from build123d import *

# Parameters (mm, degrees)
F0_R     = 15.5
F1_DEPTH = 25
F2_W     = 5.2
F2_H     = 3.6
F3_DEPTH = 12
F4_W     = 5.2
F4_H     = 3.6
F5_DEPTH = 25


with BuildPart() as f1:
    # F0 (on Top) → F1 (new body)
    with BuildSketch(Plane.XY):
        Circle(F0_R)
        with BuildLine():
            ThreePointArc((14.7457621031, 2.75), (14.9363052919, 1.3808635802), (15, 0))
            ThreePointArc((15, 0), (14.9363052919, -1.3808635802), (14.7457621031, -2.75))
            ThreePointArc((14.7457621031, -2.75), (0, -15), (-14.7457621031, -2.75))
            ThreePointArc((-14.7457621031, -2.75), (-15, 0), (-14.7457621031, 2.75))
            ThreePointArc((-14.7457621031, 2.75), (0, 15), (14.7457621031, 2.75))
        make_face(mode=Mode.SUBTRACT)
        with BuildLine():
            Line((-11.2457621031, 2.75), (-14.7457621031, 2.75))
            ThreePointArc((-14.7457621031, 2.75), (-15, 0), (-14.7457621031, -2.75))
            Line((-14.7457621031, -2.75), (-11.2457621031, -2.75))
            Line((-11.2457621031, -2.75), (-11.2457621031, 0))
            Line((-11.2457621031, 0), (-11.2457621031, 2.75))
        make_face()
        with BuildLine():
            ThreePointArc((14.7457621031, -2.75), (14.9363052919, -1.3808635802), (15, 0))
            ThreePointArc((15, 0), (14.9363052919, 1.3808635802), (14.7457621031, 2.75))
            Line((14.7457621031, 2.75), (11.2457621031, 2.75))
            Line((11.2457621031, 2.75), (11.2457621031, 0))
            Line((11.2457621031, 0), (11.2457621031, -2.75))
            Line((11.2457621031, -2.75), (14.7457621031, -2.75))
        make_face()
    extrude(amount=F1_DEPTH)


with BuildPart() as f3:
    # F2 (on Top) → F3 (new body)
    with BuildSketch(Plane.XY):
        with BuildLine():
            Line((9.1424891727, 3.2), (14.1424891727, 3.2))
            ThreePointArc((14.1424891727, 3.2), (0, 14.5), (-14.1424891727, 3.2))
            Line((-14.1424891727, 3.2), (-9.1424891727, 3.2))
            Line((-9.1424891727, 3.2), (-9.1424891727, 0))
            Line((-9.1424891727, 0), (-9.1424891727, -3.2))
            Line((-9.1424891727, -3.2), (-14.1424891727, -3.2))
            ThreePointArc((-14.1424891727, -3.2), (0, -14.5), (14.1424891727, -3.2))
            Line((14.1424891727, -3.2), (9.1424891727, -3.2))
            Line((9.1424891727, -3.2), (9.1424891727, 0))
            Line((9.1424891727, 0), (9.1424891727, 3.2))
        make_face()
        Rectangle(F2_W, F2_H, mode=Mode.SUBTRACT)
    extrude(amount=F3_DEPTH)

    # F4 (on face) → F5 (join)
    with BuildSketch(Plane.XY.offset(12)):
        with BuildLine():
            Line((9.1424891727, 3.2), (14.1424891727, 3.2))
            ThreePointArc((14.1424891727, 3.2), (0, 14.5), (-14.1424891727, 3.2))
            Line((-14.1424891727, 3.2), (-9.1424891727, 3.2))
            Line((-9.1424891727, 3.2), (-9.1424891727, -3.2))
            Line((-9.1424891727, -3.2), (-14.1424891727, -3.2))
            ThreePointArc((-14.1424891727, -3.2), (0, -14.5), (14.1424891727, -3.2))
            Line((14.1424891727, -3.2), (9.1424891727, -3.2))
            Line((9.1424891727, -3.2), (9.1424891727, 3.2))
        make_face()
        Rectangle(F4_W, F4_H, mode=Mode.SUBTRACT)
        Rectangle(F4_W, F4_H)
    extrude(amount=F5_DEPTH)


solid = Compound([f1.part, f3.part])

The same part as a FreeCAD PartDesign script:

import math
import FreeCAD as App
import Part
import Sketcher

doc = App.newDocument("Part")
params = doc.addObject("Spreadsheet::Sheet", "Params")
for row, (alias, value) in enumerate([
    ("sketch1_diameter", "31 mm"),
    ("sketch1_radius", "15 mm"),
    ("sketch1_width", "3.5 mm"),
    ("sketch1_height", "5.5 mm"),
    ("pad1_length", "25 mm"),
    ("sketch2_radius", "14.5 mm"),
    ("sketch2_width", "5 mm"),
    ("sketch2_width2", "5.2 mm"),
    ("sketch2_height", "6.4 mm"),
    ("sketch2_height2", "3.6 mm"),
    ("pad2_length", "12 mm"),
    ("sketch3_radius", "14.5 mm"),
    ("sketch3_width", "5 mm"),
    ("sketch3_height", "6.4 mm"),
    ("pad3_length", "25 mm"),
], start=1):
    params.set(f"A{row}", alias)
    params.set(f"B{row}", "=" + value)
    params.setAlias(f"B{row}", alias)

body = doc.addObject("PartDesign::Body", "Body")

sketch1 = doc.addObject("Sketcher::SketchObject", "Sketch")
body.addObject(sketch1)
sketch1.AttachmentSupport = (doc.XY_Plane, [""])
sketch1.MapMode = "FlatFace"
sketch1.addGeometry([
    Part.Circle(App.Vector(0, 0, 0), App.Vector(0, 0, 1), 15.5),
    Part.ArcOfCircle(Part.Circle(App.Vector(0, 0, 0), App.Vector(0, 0, 1), 15), math.radians(11), math.radians(169)),
    Part.LineSegment(App.Vector(14.7, 2.8, 0), App.Vector(11.2, 2.8, 0)),
    Part.LineSegment(App.Vector(11.2, 2.8, 0), App.Vector(11.2, -2.8, 0)),
    Part.LineSegment(App.Vector(11.2, -2.8, 0), App.Vector(14.7, -2.8, 0)),
    Part.ArcOfCircle(Part.Circle(App.Vector(0, 0, 0), App.Vector(0, 0, 1), 15), math.radians(-169), math.radians(-11)),
    Part.LineSegment(App.Vector(-14.7, -2.8, 0), App.Vector(-11.2, -2.8, 0)),
    Part.LineSegment(App.Vector(-11.2, -2.8, 0), App.Vector(-11.2, 2.8, 0)),
    Part.LineSegment(App.Vector(-11.2, 2.8, 0), App.Vector(-14.7, 2.8, 0)),
], False)
sketch1.addConstraint([
    Sketcher.Constraint("Coincident", 1, 1, 2, 1),
    Sketcher.Constraint("Coincident", 2, 2, 3, 1),
    Sketcher.Constraint("Coincident", 3, 2, 4, 1),
    Sketcher.Constraint("Coincident", 4, 2, 5, 2),
    Sketcher.Constraint("Coincident", 5, 1, 6, 1),
    Sketcher.Constraint("Coincident", 6, 2, 7, 1),
    Sketcher.Constraint("Coincident", 7, 2, 8, 1),
    Sketcher.Constraint("Coincident", 8, 2, 1, 2),
    Sketcher.Constraint("Horizontal", 2),
    Sketcher.Constraint("Vertical", 3),
    Sketcher.Constraint("Horizontal", 4),
    Sketcher.Constraint("Horizontal", 6),
    Sketcher.Constraint("Vertical", 7),
    Sketcher.Constraint("Horizontal", 8),
    Sketcher.Constraint("Coincident", 0, 3, -1, 1),
    Sketcher.Constraint("Coincident", 1, 3, -1, 1),
    Sketcher.Constraint("Coincident", 5, 3, -1, 1),
    Sketcher.Constraint("Equal", 1, 5),
    Sketcher.Constraint("Symmetric", 2, 2, 6, 2, -1, 1),
    Sketcher.Constraint("Horizontal", 4, 2, 5, 1),
    Sketcher.Constraint("Horizontal", 2, 2, 7, 2),
    Sketcher.Constraint("Diameter", 0, 31.0),
    Sketcher.Constraint("Radius", 1, 15.0),
    Sketcher.Constraint("DistanceX", 2, 2, 2, 1, 3.5),
    Sketcher.Constraint("DistanceY", 3, 2, 3, 1, 5.5),
])
sketch1.setExpression("Constraints[21]", "Params.sketch1_diameter")
sketch1.setExpression("Constraints[22]", "Params.sketch1_radius")
sketch1.setExpression("Constraints[23]", "Params.sketch1_width")
sketch1.setExpression("Constraints[24]", "Params.sketch1_height")
pad1 = doc.addObject("PartDesign::Pad", "Pad")
body.addObject(pad1)
pad1.Profile = sketch1
pad1.setExpression("Length", "Params.pad1_length")
body2 = doc.addObject("PartDesign::Body", "Body001")

sketch2 = doc.addObject("Sketcher::SketchObject", "Sketch001")
body2.addObject(sketch2)
sketch2.AttachmentSupport = (doc.getObject("XY_Plane001"), [""])
sketch2.MapMode = "FlatFace"
sketch2.addGeometry([
    Part.LineSegment(App.Vector(9.1, 3.2, 0), App.Vector(14.1, 3.2, 0)),
    Part.ArcOfCircle(Part.Circle(App.Vector(0, 0, 0), App.Vector(0, 0, 1), 14.5), math.radians(13), math.radians(167)),
    Part.LineSegment(App.Vector(-14.1, 3.2, 0), App.Vector(-9.1, 3.2, 0)),
    Part.LineSegment(App.Vector(-9.1, 3.2, 0), App.Vector(-9.1, -3.2, 0)),
    Part.LineSegment(App.Vector(-9.1, -3.2, 0), App.Vector(-14.1, -3.2, 0)),
    Part.ArcOfCircle(Part.Circle(App.Vector(0, 0, 0), App.Vector(0, 0, 1), 14.5), math.radians(-167), math.radians(-13)),
    Part.LineSegment(App.Vector(14.1, -3.2, 0), App.Vector(9.1, -3.2, 0)),
    Part.LineSegment(App.Vector(9.1, -3.2, 0), App.Vector(9.1, 3.2, 0)),
    Part.LineSegment(App.Vector(2.6, -1.8, 0), App.Vector(-2.6, -1.8, 0)),
    Part.LineSegment(App.Vector(-2.6, -1.8, 0), App.Vector(-2.6, 1.8, 0)),
    Part.LineSegment(App.Vector(-2.6, 1.8, 0), App.Vector(2.6, 1.8, 0)),
    Part.LineSegment(App.Vector(2.6, 1.8, 0), App.Vector(2.6, -1.8, 0)),
], False)
sketch2.addConstraint([
    Sketcher.Constraint("Coincident", 0, 2, 1, 1),
    Sketcher.Constraint("Coincident", 1, 2, 2, 1),
    Sketcher.Constraint("Coincident", 2, 2, 3, 1),
    Sketcher.Constraint("Coincident", 3, 2, 4, 1),
    Sketcher.Constraint("Coincident", 4, 2, 5, 1),
    Sketcher.Constraint("Coincident", 5, 2, 6, 1),
    Sketcher.Constraint("Coincident", 6, 2, 7, 1),
    Sketcher.Constraint("Coincident", 7, 2, 0, 1),
    Sketcher.Constraint("Coincident", 8, 2, 9, 1),
    Sketcher.Constraint("Coincident", 9, 2, 10, 1),
    Sketcher.Constraint("Coincident", 10, 2, 11, 1),
    Sketcher.Constraint("Coincident", 11, 2, 8, 1),
    Sketcher.Constraint("Horizontal", 0),
    Sketcher.Constraint("Horizontal", 2),
    Sketcher.Constraint("Vertical", 3),
    Sketcher.Constraint("Horizontal", 4),
    Sketcher.Constraint("Horizontal", 6),
    Sketcher.Constraint("Vertical", 7),
    Sketcher.Constraint("Horizontal", 8),
    Sketcher.Constraint("Vertical", 9),
    Sketcher.Constraint("Horizontal", 10),
    Sketcher.Constraint("Vertical", 11),
    Sketcher.Constraint("Coincident", 1, 3, -1, 1),
    Sketcher.Constraint("Coincident", 5, 3, -1, 1),
    Sketcher.Constraint("Equal", 1, 5),
    Sketcher.Constraint("Symmetric", 2, 2, 6, 2, -1, 1),
    Sketcher.Constraint("Symmetric", 8, 2, 10, 2, -1, 1),
    Sketcher.Constraint("Horizontal", 0, 2, 1, 2),
    Sketcher.Constraint("Horizontal", 4, 2, 5, 2),
    Sketcher.Constraint("Radius", 1, 14.5),
    Sketcher.Constraint("DistanceX", 0, 1, 0, 2, 5.0),
    Sketcher.Constraint("DistanceX", 8, 2, 8, 1, 5.2),
    Sketcher.Constraint("DistanceY", 3, 2, 3, 1, 6.4),
    Sketcher.Constraint("DistanceY", 9, 1, 9, 2, 3.6),
])
sketch2.setExpression("Constraints[29]", "Params.sketch2_radius")
sketch2.setExpression("Constraints[30]", "Params.sketch2_width")
sketch2.setExpression("Constraints[31]", "Params.sketch2_width2")
sketch2.setExpression("Constraints[32]", "Params.sketch2_height")
sketch2.setExpression("Constraints[33]", "Params.sketch2_height2")
pad2 = doc.addObject("PartDesign::Pad", "Pad001")
body2.addObject(pad2)
pad2.Profile = sketch2
pad2.setExpression("Length", "Params.pad2_length")

sketch3 = doc.addObject("Sketcher::SketchObject", "Sketch002")
body2.addObject(sketch3)
sketch3.AttachmentSupport = (doc.getObject("XY_Plane001"), [""])
sketch3.MapMode = "FlatFace"
sketch3.AttachmentOffset = App.Placement(App.Vector(0, 0, 12), App.Rotation())
sketch3.addGeometry([
    Part.LineSegment(App.Vector(9, 3, 0), App.Vector(14, 3, 0)),
    Part.ArcOfCircle(Part.Circle(App.Vector(0, 0, 0), App.Vector(0, 0, 1), 14), math.radians(13), math.radians(167)),
    Part.LineSegment(App.Vector(-14, 3, 0), App.Vector(-9, 3, 0)),
    Part.LineSegment(App.Vector(-9, 3, 0), App.Vector(-9, -3, 0)),
    Part.LineSegment(App.Vector(-9, -3, 0), App.Vector(-14, -3, 0)),
    Part.ArcOfCircle(Part.Circle(App.Vector(0, 0, 0), App.Vector(0, 0, 1), 14), math.radians(-167), math.radians(-13)),
    Part.LineSegment(App.Vector(14, -3, 0), App.Vector(9, -3, 0)),
    Part.LineSegment(App.Vector(9, -3, 0), App.Vector(9, 3, 0)),
], False)
sketch3.addConstraint([
    Sketcher.Constraint("Coincident", 0, 2, 1, 1),
    Sketcher.Constraint("Coincident", 1, 2, 2, 1),
    Sketcher.Constraint("Coincident", 2, 2, 3, 1),
    Sketcher.Constraint("Coincident", 3, 2, 4, 1),
    Sketcher.Constraint("Coincident", 4, 2, 5, 1),
    Sketcher.Constraint("Coincident", 5, 2, 6, 1),
    Sketcher.Constraint("Coincident", 6, 2, 7, 1),
    Sketcher.Constraint("Coincident", 7, 2, 0, 1),
    Sketcher.Constraint("Horizontal", 0),
    Sketcher.Constraint("Horizontal", 2),
    Sketcher.Constraint("Vertical", 3),
    Sketcher.Constraint("Horizontal", 4),
    Sketcher.Constraint("Horizontal", 6),
    Sketcher.Constraint("Vertical", 7),
    Sketcher.Constraint("Coincident", 1, 3, -1, 1),
    Sketcher.Constraint("Coincident", 5, 3, -1, 1),
    Sketcher.Constraint("Equal", 1, 5),
    Sketcher.Constraint("Symmetric", 2, 2, 6, 2, -1, 1),
    Sketcher.Constraint("Horizontal", 0, 2, 1, 2),
    Sketcher.Constraint("Horizontal", 4, 2, 5, 2),
    Sketcher.Constraint("Radius", 1, 14.5),
    Sketcher.Constraint("DistanceX", 0, 1, 0, 2, 5.0),
    Sketcher.Constraint("DistanceY", 3, 2, 3, 1, 6.4),
])
sketch3.setExpression("Constraints[20]", "Params.sketch3_radius")
sketch3.setExpression("Constraints[21]", "Params.sketch3_width")
sketch3.setExpression("Constraints[22]", "Params.sketch3_height")
pad3 = doc.addObject("PartDesign::Pad", "Pad002")
body2.addObject(pad3)
pad3.Profile = sketch3
pad3.setExpression("Length", "Params.pad3_length")

doc.recompute()
